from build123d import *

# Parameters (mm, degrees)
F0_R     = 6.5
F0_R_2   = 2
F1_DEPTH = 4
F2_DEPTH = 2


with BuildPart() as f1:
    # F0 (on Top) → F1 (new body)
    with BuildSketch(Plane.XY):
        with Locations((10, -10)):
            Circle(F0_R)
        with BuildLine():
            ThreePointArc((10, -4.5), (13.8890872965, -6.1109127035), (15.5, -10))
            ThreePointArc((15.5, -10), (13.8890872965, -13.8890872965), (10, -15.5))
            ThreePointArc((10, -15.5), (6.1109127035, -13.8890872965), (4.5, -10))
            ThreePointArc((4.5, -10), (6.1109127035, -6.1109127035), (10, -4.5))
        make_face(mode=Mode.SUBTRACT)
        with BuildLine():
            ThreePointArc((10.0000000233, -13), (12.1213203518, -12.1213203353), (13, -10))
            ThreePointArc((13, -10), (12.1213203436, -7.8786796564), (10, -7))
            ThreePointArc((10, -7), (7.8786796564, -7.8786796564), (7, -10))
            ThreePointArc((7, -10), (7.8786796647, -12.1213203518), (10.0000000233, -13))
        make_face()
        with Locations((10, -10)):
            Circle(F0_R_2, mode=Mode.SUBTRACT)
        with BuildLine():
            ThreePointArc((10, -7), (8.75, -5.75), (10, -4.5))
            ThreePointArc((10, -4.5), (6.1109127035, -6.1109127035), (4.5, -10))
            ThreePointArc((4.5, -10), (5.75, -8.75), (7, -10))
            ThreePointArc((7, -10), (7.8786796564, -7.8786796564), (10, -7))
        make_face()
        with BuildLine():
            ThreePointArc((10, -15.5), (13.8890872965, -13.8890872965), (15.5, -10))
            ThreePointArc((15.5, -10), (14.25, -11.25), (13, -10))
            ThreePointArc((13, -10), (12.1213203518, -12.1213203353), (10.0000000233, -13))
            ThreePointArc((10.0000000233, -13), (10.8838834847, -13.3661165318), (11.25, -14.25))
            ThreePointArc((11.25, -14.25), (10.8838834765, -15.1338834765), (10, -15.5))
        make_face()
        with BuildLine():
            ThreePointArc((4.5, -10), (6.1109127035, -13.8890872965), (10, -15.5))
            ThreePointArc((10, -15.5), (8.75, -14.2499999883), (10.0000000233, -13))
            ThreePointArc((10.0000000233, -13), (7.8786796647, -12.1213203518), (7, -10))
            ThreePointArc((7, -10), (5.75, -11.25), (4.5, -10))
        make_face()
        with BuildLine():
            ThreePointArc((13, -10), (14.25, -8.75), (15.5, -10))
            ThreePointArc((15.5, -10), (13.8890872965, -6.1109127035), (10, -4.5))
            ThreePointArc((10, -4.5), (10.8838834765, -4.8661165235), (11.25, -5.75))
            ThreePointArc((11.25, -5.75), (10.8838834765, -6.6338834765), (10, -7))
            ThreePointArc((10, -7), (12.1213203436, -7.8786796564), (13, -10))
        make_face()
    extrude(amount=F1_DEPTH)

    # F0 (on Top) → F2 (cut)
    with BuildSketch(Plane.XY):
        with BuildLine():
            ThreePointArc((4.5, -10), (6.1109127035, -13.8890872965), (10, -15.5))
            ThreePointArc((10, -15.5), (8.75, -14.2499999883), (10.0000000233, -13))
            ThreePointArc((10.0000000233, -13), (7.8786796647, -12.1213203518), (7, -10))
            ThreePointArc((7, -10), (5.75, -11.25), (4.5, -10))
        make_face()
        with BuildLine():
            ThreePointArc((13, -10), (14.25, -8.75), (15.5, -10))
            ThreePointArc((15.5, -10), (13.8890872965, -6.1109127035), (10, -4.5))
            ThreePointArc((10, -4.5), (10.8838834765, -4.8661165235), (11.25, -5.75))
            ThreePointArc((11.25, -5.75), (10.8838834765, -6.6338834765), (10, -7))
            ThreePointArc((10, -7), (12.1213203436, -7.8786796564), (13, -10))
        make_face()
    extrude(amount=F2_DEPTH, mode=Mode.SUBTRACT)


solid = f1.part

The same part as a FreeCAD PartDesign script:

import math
import FreeCAD as App
import Part
import Sketcher
from FreeCAD import Vector

doc = App.newDocument("Part")
body = doc.addObject("PartDesign::Body", "Body")

# Sketch on XY plane
sketch1 = doc.addObject("Sketcher::SketchObject", "Sketch")
body.addObject(sketch1)
sketch1.AttachmentSupport = (doc.XY_Plane, [""])
sketch1.MapMode = "FlatFace"
sketch1.addGeometry(Part.Circle(Vector(10, -10, 0), Vector(0, 0, 1), 6.5), False)
sketch1.addGeometry(Part.Circle(Vector(5.8, -10, 0), Vector(0, 0, 1), 1.2), False)
sketch1.addGeometry(Part.ArcOfCircle(Part.Circle(Vector(10, -14.2, 0), Vector(0, 0, 1), 1.2), math.radians(0), math.radians(90)), False)
sketch1.addGeometry(Part.ArcOfCircle(Part.Circle(Vector(10, -14.2, 0), Vector(0, 0, 1), 1.2), math.radians(-90), math.radians(0)), False)
sketch1.addGeometry(Part.ArcOfCircle(Part.Circle(Vector(10, -14.2, 0), Vector(0, 0, 1), 1.2), math.radians(90), math.radians(270)), False)
sketch1.addGeometry(Part.ArcOfCircle(Part.Circle(Vector(10, -5.8, 0), Vector(0, 0, 1), 1.2), math.radians(90), math.radians(270)), False)
sketch1.addGeometry(Part.ArcOfCircle(Part.Circle(Vector(10, -5.8, 0), Vector(0, 0, 1), 1.2), math.radians(0), math.radians(90)), False)
sketch1.addGeometry(Part.ArcOfCircle(Part.Circle(Vector(10, -5.8, 0), Vector(0, 0, 1), 1.2), math.radians(-90), math.radians(0)), False)
sketch1.addGeometry(Part.Circle(Vector(14.2, -10, 0), Vector(0, 0, 1), 1.2), False)
sketch1.addGeometry(Part.Circle(Vector(10, -10, 0), Vector(0, 0, 1), 2), False)
sketch1.addConstraint(Sketcher.Constraint("Tangent", 2, 1, 3, 2))
sketch1.addConstraint(Sketcher.Constraint("Tangent", 3, 1, 4, 2))
sketch1.addConstraint(Sketcher.Constraint("Tangent", 4, 1, 2, 2))
sketch1.addConstraint(Sketcher.Constraint("Tangent", 5, 1, 6, 2))
sketch1.addConstraint(Sketcher.Constraint("Tangent", 6, 1, 7, 2))
sketch1.addConstraint(Sketcher.Constraint("Tangent", 7, 1, 5, 2))
sketch1.addConstraint(Sketcher.Constraint("Coincident", 9, 3, 0, 3))
sketch1.addConstraint(Sketcher.Constraint("Equal", 1, 2))
sketch1.addConstraint(Sketcher.Constraint("Equal", 4, 5))
sketch1.addConstraint(Sketcher.Constraint("Equal", 7, 8))
sketch1.addConstraint(Sketcher.Constraint("Horizontal", 0, 3, 1, 3))
sketch1.addConstraint(Sketcher.Constraint("Horizontal", 1, 3, 8, 3))
sketch1.addConstraint(Sketcher.Constraint("Horizontal", 4, 3, 2, 1))
sketch1.addConstraint(Sketcher.Constraint("Horizontal", 7, 3, 6, 1))
sketch1.addConstraint(Sketcher.Constraint("Vertical", 0, 3, 2, 3))
sketch1.addConstraint(Sketcher.Constraint("Vertical", 4, 3, 5, 3))
sketch1.addConstraint(Sketcher.Constraint("Vertical", 9, 3, 3, 1))
sketch1.addConstraint(Sketcher.Constraint("Vertical", 3, 1, 4, 1))
sketch1.addConstraint(Sketcher.Constraint("Vertical", 4, 1, 5, 1))
sketch1.addConstraint(Sketcher.Constraint("Vertical", 5, 1, 7, 1))
sketch1.addConstraint(Sketcher.Constraint("Diameter", 0, 13.0))
sketch1.addConstraint(Sketcher.Constraint("Diameter", 9, 4.0))
sketch1.addConstraint(Sketcher.Constraint("Diameter", 1, 2.5))
sketch1.addConstraint(Sketcher.Constraint("DistanceX", -1, 1, 0, 3, 10.0))
sketch1.addConstraint(Sketcher.Constraint("DistanceY", 0, 3, -1, 1, 10.0))
sketch1.addConstraint(Sketcher.Constraint("DistanceY", 4, 1, -1, 1, 13.0))
sketch1.addConstraint(Sketcher.Constraint("DistanceY", 7, 1, -1, 1, 7.0))
sketch1.addConstraint(Sketcher.Constraint("DistanceX", -1, 1, 1, 3, 5.75))
sketch1.addConstraint(Sketcher.Constraint("DistanceX", -1, 1, 8, 3, 14.25))
pad1 = doc.addObject("PartDesign::Pad", "Pad")
body.addObject(pad1)
pad1.Profile = sketch1
pad1.Length = 4

# Sketch on XY plane
sketch2 = doc.addObject("Sketcher::SketchObject", "Sketch001")
body.addObject(sketch2)
sketch2.AttachmentSupport = (doc.XY_Plane, [""])
sketch2.MapMode = "FlatFace"
sketch2.addGeometry(Part.ArcOfCircle(Part.Circle(Vector(10, -10, 0), Vector(0, 0, 1), 5.5), math.radians(180), math.radians(270)), False)
sketch2.addGeometry(Part.ArcOfCircle(Part.Circle(Vector(10, -14.2, 0), Vector(0, 0, 1), 1.2), math.radians(90), math.radians(270)), False)
sketch2.addGeometry(Part.ArcOfCircle(Part.Circle(Vector(10, -10, 0), Vector(0, 0, 1), 3), math.radians(180), math.radians(270)), False)
sketch2.addGeometry(Part.ArcOfCircle(Part.Circle(Vector(5.8, -10, 0), Vector(0, 0, 1), 1.2), math.radians(180), math.radians(360)), False)
sketch2.addGeometry(Part.ArcOfCircle(Part.Circle(Vector(14.2, -10, 0), Vector(0, 0, 1), 1.2), math.radians(0), math.radians(180)), False)
sketch2.addGeometry(Part.ArcOfCircle(Part.Circle(Vector(10, -10, 0), Vector(0, 0, 1), 5.5), math.radians(0), math.radians(90)), False)
sketch2.addGeometry(Part.ArcOfCircle(Part.Circle(Vector(10, -5.8, 0), Vector(0, 0, 1), 1.2), math.radians(0), math.radians(90)), False)
sketch2.addGeometry(Part.ArcOfCircle(Part.Circle(Vector(10, -5.8, 0), Vector(0, 0, 1), 1.2), math.radians(-90), math.radians(0)), False)
sketch2.addGeometry(Part.ArcOfCircle(Part.Circle(Vector(10, -10, 0), Vector(0, 0, 1), 3), math.radians(0), math.radians(90)), False)
sketch2.addConstraint(Sketcher.Constraint("Tangent", 0, 2, 1, 2))
sketch2.addConstraint(Sketcher.Constraint("Tangent", 1, 1, 2, 2))
sketch2.addConstraint(Sketcher.Constraint("Tangent", 2, 1, 3, 2))
sketch2.addConstraint(Sketcher.Constraint("Tangent", 3, 1, 0, 1))
sketch2.addConstraint(Sketcher.Constraint("Tangent", 4, 1, 5, 1))
sketch2.addConstraint(Sketcher.Constraint("Tangent", 5, 2, 6, 2))
sketch2.addConstraint(Sketcher.Constraint("Tangent", 6, 1, 7, 2))
sketch2.addConstraint(Sketcher.Constraint("Tangent", 7, 1, 8, 2))
sketch2.addConstraint(Sketcher.Constraint("Tangent", 8, 1, 4, 2))
sketch2.addConstraint(Sketcher.Constraint("Coincident", 2, 3, 0, 3))
sketch2.addConstraint(Sketcher.Constraint("Coincident", 5, 3, 0, 3))
sketch2.addConstraint(Sketcher.Constraint("Coincident", 8, 3, 0, 3))
sketch2.addConstraint(Sketcher.Constraint("Equal", 3, 4))
sketch2.addConstraint(Sketcher.Constraint("Equal", 0, 5))
sketch2.addConstraint(Sketcher.Constraint("Equal", 4, 6))
sketch2.addConstraint(Sketcher.Constraint("Horizontal", 2, 3, 3, 3))
sketch2.addConstraint(Sketcher.Constraint("Horizontal", 3, 3, 4, 3))
sketch2.addConstraint(Sketcher.Constraint("Horizontal", 7, 3, 6, 1))
sketch2.addConstraint(Sketcher.Constraint("Vertical", 0, 3, 1, 3))
sketch2.addConstraint(Sketcher.Constraint("Vertical", 5, 3, 6, 3))
sketch2.addConstraint(Sketcher.Constraint("Radius", 2, 3.0))
sketch2.addConstraint(Sketcher.Constraint("Radius", 0, 5.5))
sketch2.addConstraint(Sketcher.Constraint("DistanceX", -1, 1, 0, 3, 10.0))
sketch2.addConstraint(Sketcher.Constraint("DistanceY", 0, 3, -1, 1, 10.0))
pocket1 = doc.addObject("PartDesign::Pocket", "Pocket")
body.addObject(pocket1)
pocket1.Profile = sketch2
pocket1.Length = 2
pocket1.Reversed = True

doc.recompute()
